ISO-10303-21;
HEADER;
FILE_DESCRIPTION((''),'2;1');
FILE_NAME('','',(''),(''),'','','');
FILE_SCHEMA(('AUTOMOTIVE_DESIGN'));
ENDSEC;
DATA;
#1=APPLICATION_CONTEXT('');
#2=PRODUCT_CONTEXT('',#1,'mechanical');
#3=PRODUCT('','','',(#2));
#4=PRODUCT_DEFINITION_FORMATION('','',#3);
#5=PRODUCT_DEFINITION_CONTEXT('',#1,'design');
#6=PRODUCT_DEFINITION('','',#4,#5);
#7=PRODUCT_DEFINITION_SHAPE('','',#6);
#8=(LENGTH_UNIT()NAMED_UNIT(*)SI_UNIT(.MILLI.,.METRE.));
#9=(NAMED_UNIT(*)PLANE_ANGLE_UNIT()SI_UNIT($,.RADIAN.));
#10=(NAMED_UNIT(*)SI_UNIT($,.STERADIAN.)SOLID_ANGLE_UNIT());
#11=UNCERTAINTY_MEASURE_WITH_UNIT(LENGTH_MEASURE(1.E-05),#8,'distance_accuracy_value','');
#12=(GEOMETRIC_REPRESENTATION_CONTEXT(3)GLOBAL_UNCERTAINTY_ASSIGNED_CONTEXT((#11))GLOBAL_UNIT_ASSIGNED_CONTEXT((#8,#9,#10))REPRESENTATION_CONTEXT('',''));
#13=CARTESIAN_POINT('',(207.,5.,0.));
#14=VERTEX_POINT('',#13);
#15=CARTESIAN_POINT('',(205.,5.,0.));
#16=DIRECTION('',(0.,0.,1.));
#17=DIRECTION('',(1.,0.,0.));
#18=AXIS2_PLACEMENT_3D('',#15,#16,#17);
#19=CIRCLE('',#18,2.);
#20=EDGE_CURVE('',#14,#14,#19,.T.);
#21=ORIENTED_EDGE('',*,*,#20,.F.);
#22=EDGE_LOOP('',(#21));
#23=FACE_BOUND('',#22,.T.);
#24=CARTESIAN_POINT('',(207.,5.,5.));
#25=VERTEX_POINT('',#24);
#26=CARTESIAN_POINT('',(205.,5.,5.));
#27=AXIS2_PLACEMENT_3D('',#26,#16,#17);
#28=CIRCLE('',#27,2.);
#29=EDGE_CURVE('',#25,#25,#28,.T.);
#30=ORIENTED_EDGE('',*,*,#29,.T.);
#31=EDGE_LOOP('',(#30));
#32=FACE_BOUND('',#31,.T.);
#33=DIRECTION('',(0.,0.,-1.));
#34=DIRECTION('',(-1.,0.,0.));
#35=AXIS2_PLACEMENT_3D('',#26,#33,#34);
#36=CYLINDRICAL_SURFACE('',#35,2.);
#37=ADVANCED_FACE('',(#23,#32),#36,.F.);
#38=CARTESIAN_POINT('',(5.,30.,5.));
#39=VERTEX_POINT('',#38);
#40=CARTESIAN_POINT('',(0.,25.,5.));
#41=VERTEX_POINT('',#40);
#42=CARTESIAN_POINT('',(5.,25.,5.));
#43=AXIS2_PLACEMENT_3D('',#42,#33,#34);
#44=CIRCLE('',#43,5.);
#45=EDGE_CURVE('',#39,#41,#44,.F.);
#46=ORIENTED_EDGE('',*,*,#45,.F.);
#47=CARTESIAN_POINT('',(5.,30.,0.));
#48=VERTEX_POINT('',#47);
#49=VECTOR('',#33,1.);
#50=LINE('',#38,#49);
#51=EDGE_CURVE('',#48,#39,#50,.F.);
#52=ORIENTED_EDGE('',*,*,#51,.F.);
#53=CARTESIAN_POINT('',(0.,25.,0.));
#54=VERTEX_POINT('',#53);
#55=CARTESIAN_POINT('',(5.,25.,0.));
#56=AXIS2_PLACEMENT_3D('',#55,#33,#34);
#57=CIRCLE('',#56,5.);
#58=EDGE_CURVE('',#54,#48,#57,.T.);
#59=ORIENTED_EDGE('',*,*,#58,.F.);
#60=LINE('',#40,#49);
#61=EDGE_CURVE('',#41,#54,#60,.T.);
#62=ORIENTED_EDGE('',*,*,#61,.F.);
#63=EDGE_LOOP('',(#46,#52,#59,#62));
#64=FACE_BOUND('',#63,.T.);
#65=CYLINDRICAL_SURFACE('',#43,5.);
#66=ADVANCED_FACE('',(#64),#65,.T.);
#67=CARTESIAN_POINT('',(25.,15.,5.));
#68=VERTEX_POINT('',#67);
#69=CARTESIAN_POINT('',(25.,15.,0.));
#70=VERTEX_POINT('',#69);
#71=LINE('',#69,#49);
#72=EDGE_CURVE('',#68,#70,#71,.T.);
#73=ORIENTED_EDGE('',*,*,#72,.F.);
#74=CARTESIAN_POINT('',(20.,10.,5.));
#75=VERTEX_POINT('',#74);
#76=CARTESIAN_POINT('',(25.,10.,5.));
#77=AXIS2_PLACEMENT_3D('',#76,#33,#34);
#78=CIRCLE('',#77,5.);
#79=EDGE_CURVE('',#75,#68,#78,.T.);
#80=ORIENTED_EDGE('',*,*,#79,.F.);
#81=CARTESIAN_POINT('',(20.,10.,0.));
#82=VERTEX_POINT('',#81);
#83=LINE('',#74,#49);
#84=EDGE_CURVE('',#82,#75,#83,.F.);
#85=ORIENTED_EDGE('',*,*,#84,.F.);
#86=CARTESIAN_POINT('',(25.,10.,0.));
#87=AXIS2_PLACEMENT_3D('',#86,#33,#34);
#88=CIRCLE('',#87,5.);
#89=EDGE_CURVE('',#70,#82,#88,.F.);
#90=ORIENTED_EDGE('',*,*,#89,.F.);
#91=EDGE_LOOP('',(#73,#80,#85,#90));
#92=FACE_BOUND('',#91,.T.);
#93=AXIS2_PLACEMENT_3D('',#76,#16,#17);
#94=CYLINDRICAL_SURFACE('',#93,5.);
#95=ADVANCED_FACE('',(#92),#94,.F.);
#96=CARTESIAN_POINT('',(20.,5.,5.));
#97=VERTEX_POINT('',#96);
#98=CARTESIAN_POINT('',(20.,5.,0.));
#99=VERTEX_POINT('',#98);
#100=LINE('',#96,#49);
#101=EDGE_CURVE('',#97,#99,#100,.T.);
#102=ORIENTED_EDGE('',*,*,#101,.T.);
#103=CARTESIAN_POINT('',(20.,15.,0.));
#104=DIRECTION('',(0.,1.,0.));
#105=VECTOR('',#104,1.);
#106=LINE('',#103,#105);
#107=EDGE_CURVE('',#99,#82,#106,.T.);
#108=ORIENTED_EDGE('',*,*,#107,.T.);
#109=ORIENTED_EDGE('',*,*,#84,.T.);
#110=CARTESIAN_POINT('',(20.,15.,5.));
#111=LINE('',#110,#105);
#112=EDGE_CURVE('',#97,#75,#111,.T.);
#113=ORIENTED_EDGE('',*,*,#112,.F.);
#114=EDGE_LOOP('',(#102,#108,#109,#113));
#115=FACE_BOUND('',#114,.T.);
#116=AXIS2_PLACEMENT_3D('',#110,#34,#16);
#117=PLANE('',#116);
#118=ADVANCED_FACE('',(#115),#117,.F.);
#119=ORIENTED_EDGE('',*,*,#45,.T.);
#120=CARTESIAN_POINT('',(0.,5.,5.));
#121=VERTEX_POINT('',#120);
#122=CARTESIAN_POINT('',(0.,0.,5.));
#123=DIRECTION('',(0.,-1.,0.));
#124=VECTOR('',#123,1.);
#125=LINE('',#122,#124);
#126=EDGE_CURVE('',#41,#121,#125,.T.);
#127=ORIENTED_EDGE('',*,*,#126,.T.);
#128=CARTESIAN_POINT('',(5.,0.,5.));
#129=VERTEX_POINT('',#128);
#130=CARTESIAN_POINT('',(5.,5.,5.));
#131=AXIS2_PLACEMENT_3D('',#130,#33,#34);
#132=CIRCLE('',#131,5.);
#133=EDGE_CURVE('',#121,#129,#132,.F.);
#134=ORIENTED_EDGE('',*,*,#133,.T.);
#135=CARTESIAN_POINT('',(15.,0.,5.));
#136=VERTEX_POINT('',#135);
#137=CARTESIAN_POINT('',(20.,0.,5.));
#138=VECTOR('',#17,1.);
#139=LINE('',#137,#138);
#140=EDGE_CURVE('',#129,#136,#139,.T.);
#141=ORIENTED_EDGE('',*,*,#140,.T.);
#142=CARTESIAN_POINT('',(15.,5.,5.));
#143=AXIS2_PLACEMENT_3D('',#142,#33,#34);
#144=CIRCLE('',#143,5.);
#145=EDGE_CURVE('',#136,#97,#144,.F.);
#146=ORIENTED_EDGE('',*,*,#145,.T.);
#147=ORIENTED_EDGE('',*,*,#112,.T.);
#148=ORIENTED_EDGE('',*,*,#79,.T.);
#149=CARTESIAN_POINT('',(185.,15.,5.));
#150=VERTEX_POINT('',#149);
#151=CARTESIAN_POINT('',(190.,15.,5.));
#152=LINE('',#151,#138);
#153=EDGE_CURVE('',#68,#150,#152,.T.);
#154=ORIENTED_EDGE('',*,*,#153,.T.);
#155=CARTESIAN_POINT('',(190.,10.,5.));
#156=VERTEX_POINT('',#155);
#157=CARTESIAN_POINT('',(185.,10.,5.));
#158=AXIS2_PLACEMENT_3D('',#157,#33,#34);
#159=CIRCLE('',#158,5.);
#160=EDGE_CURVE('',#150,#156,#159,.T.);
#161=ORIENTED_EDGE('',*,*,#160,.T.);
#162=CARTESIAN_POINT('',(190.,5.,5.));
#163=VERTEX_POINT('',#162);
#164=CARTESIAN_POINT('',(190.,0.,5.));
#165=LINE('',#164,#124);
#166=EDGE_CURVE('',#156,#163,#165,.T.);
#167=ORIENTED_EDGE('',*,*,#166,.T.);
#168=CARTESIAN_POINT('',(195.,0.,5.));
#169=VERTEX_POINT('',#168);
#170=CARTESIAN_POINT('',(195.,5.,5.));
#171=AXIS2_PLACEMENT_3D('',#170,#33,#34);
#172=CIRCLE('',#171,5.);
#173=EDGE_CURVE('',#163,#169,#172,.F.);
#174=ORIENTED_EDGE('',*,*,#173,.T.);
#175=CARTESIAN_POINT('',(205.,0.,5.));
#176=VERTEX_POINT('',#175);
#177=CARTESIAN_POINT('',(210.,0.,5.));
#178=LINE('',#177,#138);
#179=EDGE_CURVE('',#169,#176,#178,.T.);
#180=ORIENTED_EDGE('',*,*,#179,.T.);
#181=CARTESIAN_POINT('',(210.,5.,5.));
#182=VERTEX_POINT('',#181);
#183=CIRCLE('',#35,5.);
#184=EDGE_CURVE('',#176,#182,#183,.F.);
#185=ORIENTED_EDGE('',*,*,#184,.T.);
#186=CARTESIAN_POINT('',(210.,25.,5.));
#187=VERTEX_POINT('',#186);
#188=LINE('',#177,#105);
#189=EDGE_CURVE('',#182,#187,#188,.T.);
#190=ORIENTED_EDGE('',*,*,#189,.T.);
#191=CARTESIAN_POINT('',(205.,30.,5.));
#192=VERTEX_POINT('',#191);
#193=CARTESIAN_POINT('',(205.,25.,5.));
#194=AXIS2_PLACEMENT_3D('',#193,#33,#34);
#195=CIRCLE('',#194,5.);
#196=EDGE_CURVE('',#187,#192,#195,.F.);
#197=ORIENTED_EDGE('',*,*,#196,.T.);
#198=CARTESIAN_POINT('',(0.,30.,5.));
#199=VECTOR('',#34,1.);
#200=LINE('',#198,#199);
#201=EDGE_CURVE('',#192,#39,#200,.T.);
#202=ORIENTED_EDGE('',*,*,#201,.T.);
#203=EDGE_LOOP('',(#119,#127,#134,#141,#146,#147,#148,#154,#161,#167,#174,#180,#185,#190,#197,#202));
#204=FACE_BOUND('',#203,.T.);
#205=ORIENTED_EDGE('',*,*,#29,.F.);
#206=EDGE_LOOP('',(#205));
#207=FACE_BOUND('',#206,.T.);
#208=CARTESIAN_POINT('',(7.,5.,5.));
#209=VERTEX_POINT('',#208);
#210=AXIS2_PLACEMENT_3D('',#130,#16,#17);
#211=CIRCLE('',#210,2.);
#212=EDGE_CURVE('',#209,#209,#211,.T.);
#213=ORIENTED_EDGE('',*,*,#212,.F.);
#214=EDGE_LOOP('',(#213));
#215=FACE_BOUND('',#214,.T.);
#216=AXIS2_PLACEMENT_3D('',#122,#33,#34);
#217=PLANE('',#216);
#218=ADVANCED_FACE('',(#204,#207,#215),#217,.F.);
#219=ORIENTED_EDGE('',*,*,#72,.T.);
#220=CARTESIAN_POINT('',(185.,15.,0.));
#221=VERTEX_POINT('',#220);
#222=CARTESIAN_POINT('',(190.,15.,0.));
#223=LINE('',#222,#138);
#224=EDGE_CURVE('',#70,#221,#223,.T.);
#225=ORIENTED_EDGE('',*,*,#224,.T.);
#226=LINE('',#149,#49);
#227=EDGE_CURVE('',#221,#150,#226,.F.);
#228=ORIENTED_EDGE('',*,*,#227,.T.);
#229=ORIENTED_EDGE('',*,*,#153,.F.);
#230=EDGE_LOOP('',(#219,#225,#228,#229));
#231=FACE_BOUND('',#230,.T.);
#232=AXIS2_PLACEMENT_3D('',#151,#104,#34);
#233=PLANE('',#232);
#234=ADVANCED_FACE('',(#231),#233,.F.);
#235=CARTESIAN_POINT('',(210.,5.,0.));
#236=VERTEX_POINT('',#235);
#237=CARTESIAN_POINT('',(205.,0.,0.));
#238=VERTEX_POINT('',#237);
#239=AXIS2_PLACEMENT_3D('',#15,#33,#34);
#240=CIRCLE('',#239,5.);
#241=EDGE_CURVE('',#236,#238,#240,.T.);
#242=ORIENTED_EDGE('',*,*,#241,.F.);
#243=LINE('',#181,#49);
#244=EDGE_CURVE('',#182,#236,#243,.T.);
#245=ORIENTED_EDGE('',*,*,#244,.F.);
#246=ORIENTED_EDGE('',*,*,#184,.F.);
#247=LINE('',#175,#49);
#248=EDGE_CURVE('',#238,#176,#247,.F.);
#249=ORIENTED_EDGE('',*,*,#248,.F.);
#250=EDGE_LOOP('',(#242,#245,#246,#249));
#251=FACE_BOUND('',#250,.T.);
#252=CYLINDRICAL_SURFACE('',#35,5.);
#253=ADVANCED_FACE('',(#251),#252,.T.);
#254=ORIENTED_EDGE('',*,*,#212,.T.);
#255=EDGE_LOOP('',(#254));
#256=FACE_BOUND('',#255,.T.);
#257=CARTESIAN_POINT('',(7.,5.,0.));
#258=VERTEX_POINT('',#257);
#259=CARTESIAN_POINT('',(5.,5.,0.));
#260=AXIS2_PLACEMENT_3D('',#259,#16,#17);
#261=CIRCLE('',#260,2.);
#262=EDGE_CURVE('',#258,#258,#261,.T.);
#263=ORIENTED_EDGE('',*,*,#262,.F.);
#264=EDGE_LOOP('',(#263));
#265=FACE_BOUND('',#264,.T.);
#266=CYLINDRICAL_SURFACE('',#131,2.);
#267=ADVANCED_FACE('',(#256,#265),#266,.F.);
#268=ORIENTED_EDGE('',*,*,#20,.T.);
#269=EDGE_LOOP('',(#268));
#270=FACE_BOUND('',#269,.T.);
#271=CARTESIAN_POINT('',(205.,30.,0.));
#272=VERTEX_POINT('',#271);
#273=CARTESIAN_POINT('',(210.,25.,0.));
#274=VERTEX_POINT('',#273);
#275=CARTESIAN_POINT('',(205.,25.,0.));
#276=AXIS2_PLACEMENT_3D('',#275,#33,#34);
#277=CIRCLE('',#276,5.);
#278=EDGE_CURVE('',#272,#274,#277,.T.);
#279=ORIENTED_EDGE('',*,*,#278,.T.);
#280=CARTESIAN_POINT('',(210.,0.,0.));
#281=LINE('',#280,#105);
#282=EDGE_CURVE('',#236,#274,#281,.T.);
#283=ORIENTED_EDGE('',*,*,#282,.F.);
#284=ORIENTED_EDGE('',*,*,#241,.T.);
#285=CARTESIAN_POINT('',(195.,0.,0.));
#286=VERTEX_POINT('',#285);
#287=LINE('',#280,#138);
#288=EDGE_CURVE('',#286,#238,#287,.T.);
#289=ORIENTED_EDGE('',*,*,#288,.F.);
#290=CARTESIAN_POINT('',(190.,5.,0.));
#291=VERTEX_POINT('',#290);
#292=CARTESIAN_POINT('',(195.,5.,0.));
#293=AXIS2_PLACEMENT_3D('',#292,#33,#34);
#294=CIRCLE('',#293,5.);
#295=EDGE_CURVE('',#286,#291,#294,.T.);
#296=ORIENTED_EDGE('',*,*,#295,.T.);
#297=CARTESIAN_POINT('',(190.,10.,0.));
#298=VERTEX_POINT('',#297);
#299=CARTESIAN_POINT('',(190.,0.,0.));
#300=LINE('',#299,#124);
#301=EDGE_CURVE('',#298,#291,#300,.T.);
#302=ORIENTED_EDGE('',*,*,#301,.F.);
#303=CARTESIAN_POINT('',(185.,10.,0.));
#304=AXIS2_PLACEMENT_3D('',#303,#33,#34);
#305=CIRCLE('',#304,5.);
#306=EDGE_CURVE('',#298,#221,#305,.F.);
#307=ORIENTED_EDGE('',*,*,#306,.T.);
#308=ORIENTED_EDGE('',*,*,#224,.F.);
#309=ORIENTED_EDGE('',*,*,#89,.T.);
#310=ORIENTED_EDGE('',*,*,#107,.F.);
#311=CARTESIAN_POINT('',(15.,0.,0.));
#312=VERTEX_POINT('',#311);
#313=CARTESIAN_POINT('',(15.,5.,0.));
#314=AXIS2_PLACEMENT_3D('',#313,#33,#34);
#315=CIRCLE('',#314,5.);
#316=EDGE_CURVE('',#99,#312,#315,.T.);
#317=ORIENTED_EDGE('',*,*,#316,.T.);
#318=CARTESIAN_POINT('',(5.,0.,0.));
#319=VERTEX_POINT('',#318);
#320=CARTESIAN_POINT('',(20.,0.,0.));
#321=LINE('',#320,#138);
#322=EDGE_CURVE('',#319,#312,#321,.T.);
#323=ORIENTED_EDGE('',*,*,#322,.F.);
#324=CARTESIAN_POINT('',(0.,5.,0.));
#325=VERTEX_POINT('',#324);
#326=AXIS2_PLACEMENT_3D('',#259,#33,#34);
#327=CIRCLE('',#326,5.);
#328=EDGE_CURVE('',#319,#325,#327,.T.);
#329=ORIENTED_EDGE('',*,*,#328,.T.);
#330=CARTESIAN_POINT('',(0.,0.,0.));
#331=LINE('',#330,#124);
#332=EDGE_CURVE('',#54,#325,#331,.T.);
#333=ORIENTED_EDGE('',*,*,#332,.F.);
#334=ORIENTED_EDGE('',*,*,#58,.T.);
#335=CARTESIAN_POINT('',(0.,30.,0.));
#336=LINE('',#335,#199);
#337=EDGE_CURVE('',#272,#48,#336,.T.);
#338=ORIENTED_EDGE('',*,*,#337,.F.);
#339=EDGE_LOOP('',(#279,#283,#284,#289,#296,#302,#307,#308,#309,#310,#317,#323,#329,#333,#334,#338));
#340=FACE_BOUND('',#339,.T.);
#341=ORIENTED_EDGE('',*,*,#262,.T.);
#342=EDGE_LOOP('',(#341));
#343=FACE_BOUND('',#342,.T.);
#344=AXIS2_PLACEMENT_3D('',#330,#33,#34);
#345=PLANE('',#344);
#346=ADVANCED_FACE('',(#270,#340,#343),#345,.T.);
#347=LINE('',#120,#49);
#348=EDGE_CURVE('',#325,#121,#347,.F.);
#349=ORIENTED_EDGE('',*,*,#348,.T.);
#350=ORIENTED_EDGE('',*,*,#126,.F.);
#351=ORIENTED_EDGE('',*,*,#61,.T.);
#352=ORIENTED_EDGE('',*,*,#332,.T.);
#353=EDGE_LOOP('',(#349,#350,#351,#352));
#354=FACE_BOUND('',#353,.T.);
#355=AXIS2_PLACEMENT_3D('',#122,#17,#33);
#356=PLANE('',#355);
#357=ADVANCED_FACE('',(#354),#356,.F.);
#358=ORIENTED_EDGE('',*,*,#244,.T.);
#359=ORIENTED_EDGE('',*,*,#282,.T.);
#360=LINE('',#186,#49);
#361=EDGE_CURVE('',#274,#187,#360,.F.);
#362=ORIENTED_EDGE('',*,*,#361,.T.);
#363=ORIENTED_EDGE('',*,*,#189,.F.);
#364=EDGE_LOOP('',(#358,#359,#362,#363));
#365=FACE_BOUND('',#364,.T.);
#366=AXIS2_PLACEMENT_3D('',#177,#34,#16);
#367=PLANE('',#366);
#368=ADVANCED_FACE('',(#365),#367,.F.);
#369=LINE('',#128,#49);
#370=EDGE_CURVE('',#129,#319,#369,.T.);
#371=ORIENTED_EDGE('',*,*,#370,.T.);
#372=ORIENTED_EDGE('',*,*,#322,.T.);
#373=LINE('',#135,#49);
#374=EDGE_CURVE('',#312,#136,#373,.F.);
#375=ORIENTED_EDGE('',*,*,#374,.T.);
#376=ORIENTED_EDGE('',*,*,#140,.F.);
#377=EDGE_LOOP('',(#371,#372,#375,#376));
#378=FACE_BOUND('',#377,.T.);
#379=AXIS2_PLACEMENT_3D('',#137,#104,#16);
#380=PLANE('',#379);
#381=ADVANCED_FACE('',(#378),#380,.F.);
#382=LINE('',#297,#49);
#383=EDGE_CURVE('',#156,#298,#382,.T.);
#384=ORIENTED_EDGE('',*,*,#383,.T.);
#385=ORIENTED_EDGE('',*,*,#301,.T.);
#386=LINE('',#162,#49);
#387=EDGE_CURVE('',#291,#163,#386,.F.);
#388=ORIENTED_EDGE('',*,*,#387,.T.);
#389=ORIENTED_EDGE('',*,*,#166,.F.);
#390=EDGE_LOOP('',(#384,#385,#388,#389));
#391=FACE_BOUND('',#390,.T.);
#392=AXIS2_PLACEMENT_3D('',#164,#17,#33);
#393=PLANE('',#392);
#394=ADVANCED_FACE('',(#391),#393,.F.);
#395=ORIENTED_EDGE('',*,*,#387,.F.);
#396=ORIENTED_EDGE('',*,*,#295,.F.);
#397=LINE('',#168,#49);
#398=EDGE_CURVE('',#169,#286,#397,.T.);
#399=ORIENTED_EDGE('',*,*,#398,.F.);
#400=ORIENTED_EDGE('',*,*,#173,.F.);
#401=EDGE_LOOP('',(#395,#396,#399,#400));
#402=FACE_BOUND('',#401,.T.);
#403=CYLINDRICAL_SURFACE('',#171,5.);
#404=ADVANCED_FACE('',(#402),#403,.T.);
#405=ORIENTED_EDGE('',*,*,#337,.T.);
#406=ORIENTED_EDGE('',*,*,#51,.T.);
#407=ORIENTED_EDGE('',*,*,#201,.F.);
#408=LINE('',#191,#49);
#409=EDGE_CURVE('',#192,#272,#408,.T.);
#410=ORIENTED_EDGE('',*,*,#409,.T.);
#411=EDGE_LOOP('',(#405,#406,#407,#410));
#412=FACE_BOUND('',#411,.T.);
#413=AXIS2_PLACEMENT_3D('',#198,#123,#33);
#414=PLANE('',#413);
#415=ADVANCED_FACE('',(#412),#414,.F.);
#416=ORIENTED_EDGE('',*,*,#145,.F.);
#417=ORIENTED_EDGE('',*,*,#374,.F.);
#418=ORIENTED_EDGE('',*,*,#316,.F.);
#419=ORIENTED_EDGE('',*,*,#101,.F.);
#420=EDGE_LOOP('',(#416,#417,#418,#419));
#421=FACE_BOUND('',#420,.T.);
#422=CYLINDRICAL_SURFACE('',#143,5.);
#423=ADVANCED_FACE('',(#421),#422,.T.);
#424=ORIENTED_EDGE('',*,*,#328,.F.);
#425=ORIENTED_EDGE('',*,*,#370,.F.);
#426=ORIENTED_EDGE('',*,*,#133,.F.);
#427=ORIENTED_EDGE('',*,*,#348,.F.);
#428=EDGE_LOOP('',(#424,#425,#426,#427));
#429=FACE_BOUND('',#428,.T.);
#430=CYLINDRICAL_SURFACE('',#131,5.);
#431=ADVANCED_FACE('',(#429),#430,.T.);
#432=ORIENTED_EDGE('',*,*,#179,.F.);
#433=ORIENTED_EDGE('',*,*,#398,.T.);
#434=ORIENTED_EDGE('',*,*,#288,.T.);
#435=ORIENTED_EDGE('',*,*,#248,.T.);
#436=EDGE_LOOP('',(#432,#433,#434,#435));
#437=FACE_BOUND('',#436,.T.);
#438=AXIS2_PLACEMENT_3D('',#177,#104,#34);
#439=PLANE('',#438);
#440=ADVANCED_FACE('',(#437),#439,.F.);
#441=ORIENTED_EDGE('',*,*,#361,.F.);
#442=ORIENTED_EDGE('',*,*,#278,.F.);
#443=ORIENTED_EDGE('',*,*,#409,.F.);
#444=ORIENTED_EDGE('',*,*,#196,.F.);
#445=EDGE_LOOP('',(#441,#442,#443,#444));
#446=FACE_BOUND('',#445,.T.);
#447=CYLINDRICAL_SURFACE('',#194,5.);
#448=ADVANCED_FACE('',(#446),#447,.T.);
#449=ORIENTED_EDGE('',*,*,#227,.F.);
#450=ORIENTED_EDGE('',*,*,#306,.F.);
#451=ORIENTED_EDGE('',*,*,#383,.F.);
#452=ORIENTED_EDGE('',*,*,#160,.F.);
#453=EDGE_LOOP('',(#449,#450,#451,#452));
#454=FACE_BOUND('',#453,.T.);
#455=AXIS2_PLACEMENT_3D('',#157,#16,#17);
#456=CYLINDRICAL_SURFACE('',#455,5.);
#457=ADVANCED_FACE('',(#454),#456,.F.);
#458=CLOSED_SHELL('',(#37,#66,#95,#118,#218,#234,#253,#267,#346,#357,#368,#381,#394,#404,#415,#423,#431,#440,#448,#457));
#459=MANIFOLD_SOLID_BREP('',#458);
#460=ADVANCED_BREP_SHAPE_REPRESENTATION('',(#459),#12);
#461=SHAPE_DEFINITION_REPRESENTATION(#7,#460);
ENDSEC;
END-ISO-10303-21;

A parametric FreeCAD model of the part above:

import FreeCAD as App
import Part
import Sketcher
from FreeCAD import Vector
Q = App.Units.Quantity


def edges_at(feature, points):
    """Names of the edges that pass closest to the given points."""
    edges = feature.Shape.Edges
    near = lambda p: min(range(len(edges)), key=lambda i: edges[i].distToShape(Part.Vertex(*p))[0])
    return sorted({f"Edge{near(p) + 1}" for p in points})

doc = App.newDocument("Part")
params = doc.addObject("Spreadsheet::Sheet", "Params")
for row, (alias, value) in enumerate([
    ("sketch1_diameter", "4 mm"),
    ("sketch1_width", "20 mm"),
    ("sketch1_width2", "170 mm"),
    ("sketch1_height", "30 mm"),
    ("sketch1_height2", "15 mm"),
    ("pad1_length", "5 mm"),
    ("fillet_radius", "5 mm"),
], start=1):
    params.set(f"A{row}", alias)
    params.set(f"B{row}", "=" + value)
    params.setAlias(f"B{row}", alias)

body = doc.addObject("PartDesign::Body", "Body")

# Sketch on XY plane
sketch1 = body.newObject("Sketcher::SketchObject", "Sketch")
sketch1.AttachmentSupport = (doc.getObject("XY_Plane"), [""])
sketch1.MapMode = "FlatFace"
sketch1.addGeometry(Part.LineSegment(Vector(0, 30, 0), Vector(0, 0, 0)), False)
sketch1.addGeometry(Part.LineSegment(Vector(0, 0, 0), Vector(20, 0, 0)), False)
sketch1.addGeometry(Part.LineSegment(Vector(20, 0, 0), Vector(20, 15, 0)), False)
sketch1.addGeometry(Part.LineSegment(Vector(20, 15, 0), Vector(190, 15, 0)), False)
sketch1.addGeometry(Part.LineSegment(Vector(190, 15, 0), Vector(190, 0, 0)), False)
sketch1.addGeometry(Part.LineSegment(Vector(190, 0, 0), Vector(210, 0, 0)), False)
sketch1.addGeometry(Part.LineSegment(Vector(210, 0, 0), Vector(210, 30, 0)), False)
sketch1.addGeometry(Part.LineSegment(Vector(210, 30, 0), Vector(0, 30, 0)), False)
sketch1.addGeometry(Part.Circle(Vector(205, 5, 0), Vector(0, 0, 1), 2), False)
sketch1.addGeometry(Part.Circle(Vector(5, 5, 0), Vector(0, 0, 1), 2), False)
sketch1.addConstraint(Sketcher.Constraint("Coincident", 0, 2, 1, 1))
sketch1.addConstraint(Sketcher.Constraint("Coincident", 1, 2, 2, 1))
sketch1.addConstraint(Sketcher.Constraint("Coincident", 2, 2, 3, 1))
sketch1.addConstraint(Sketcher.Constraint("Coincident", 3, 2, 4, 1))
sketch1.addConstraint(Sketcher.Constraint("Coincident", 4, 2, 5, 1))
sketch1.addConstraint(Sketcher.Constraint("Coincident", 5, 2, 6, 1))
sketch1.addConstraint(Sketcher.Constraint("Coincident", 6, 2, 7, 1))
sketch1.addConstraint(Sketcher.Constraint("Coincident", 7, 2, 0, 1))
sketch1.addConstraint(Sketcher.Constraint("Vertical", 0))
sketch1.addConstraint(Sketcher.Constraint("Horizontal", 1))
sketch1.addConstraint(Sketcher.Constraint("Vertical", 2))
sketch1.addConstraint(Sketcher.Constraint("Horizontal", 3))
sketch1.addConstraint(Sketcher.Constraint("Vertical", 4))
sketch1.addConstraint(Sketcher.Constraint("Horizontal", 5))
sketch1.addConstraint(Sketcher.Constraint("Vertical", 6))
sketch1.addConstraint(Sketcher.Constraint("Horizontal", 7))
sketch1.addConstraint(Sketcher.Constraint("Coincident", 0, 2, -1, 1))
sketch1.addConstraint(Sketcher.Constraint("Equal", 8, 9))
sketch1.addConstraint(Sketcher.Constraint("PointOnObject", 4, 2, -1))
sketch1.addConstraint(Sketcher.Constraint("Horizontal", 8, 3, 9, 3))
sketch1.addConstraint(Sketcher.Constraint("Equal", 1, 5))
sketch1.addConstraint(Sketcher.Constraint("Diameter", 8, Q("4 mm")))
sketch1.addConstraint(Sketcher.Constraint("DistanceX", 1, 1, 1, 2, Q("20 mm")))
sketch1.addConstraint(Sketcher.Constraint("DistanceX", 3, 1, 3, 2, Q("170 mm")))
sketch1.addConstraint(Sketcher.Constraint("DistanceY", 0, 2, 0, 1, Q("30 mm")))
sketch1.addConstraint(Sketcher.Constraint("DistanceY", 2, 1, 2, 2, Q("15 mm")))
sketch1.addConstraint(Sketcher.Constraint("DistanceX", -1, 1, 8, 3, Q("205 mm")))
sketch1.addConstraint(Sketcher.Constraint("DistanceY", -1, 1, 8, 3, Q("5 mm")))
sketch1.addConstraint(Sketcher.Constraint("DistanceX", -1, 1, 9, 3, Q("5 mm")))
sketch1.setExpression("Constraints[21]", "Params.sketch1_diameter")
sketch1.setExpression("Constraints[22]", "Params.sketch1_width")
sketch1.setExpression("Constraints[23]", "Params.sketch1_width2")
sketch1.setExpression("Constraints[24]", "Params.sketch1_height")
sketch1.setExpression("Constraints[25]", "Params.sketch1_height2")
pad1 = body.newObject("PartDesign::Pad", "Pad")
pad1.Profile = sketch1
pad1.setExpression("Length", "Params.pad1_length")
doc.recompute()

fillet = body.newObject("PartDesign::Fillet", "Fillet")
fillet.Base = (pad1, edges_at(pad1, [
    (0, 0, 2.5),
    (0, 30, 2.5),
    (210, 30, 2.5),
    (210, 0, 2.5),
    (190, 0, 2.5),
    (190, 15, 2.5),
    (20, 15, 2.5),
    (20, 0, 2.5),
]))
fillet.setExpression("Radius", "Params.fillet_radius")

doc.recompute()
